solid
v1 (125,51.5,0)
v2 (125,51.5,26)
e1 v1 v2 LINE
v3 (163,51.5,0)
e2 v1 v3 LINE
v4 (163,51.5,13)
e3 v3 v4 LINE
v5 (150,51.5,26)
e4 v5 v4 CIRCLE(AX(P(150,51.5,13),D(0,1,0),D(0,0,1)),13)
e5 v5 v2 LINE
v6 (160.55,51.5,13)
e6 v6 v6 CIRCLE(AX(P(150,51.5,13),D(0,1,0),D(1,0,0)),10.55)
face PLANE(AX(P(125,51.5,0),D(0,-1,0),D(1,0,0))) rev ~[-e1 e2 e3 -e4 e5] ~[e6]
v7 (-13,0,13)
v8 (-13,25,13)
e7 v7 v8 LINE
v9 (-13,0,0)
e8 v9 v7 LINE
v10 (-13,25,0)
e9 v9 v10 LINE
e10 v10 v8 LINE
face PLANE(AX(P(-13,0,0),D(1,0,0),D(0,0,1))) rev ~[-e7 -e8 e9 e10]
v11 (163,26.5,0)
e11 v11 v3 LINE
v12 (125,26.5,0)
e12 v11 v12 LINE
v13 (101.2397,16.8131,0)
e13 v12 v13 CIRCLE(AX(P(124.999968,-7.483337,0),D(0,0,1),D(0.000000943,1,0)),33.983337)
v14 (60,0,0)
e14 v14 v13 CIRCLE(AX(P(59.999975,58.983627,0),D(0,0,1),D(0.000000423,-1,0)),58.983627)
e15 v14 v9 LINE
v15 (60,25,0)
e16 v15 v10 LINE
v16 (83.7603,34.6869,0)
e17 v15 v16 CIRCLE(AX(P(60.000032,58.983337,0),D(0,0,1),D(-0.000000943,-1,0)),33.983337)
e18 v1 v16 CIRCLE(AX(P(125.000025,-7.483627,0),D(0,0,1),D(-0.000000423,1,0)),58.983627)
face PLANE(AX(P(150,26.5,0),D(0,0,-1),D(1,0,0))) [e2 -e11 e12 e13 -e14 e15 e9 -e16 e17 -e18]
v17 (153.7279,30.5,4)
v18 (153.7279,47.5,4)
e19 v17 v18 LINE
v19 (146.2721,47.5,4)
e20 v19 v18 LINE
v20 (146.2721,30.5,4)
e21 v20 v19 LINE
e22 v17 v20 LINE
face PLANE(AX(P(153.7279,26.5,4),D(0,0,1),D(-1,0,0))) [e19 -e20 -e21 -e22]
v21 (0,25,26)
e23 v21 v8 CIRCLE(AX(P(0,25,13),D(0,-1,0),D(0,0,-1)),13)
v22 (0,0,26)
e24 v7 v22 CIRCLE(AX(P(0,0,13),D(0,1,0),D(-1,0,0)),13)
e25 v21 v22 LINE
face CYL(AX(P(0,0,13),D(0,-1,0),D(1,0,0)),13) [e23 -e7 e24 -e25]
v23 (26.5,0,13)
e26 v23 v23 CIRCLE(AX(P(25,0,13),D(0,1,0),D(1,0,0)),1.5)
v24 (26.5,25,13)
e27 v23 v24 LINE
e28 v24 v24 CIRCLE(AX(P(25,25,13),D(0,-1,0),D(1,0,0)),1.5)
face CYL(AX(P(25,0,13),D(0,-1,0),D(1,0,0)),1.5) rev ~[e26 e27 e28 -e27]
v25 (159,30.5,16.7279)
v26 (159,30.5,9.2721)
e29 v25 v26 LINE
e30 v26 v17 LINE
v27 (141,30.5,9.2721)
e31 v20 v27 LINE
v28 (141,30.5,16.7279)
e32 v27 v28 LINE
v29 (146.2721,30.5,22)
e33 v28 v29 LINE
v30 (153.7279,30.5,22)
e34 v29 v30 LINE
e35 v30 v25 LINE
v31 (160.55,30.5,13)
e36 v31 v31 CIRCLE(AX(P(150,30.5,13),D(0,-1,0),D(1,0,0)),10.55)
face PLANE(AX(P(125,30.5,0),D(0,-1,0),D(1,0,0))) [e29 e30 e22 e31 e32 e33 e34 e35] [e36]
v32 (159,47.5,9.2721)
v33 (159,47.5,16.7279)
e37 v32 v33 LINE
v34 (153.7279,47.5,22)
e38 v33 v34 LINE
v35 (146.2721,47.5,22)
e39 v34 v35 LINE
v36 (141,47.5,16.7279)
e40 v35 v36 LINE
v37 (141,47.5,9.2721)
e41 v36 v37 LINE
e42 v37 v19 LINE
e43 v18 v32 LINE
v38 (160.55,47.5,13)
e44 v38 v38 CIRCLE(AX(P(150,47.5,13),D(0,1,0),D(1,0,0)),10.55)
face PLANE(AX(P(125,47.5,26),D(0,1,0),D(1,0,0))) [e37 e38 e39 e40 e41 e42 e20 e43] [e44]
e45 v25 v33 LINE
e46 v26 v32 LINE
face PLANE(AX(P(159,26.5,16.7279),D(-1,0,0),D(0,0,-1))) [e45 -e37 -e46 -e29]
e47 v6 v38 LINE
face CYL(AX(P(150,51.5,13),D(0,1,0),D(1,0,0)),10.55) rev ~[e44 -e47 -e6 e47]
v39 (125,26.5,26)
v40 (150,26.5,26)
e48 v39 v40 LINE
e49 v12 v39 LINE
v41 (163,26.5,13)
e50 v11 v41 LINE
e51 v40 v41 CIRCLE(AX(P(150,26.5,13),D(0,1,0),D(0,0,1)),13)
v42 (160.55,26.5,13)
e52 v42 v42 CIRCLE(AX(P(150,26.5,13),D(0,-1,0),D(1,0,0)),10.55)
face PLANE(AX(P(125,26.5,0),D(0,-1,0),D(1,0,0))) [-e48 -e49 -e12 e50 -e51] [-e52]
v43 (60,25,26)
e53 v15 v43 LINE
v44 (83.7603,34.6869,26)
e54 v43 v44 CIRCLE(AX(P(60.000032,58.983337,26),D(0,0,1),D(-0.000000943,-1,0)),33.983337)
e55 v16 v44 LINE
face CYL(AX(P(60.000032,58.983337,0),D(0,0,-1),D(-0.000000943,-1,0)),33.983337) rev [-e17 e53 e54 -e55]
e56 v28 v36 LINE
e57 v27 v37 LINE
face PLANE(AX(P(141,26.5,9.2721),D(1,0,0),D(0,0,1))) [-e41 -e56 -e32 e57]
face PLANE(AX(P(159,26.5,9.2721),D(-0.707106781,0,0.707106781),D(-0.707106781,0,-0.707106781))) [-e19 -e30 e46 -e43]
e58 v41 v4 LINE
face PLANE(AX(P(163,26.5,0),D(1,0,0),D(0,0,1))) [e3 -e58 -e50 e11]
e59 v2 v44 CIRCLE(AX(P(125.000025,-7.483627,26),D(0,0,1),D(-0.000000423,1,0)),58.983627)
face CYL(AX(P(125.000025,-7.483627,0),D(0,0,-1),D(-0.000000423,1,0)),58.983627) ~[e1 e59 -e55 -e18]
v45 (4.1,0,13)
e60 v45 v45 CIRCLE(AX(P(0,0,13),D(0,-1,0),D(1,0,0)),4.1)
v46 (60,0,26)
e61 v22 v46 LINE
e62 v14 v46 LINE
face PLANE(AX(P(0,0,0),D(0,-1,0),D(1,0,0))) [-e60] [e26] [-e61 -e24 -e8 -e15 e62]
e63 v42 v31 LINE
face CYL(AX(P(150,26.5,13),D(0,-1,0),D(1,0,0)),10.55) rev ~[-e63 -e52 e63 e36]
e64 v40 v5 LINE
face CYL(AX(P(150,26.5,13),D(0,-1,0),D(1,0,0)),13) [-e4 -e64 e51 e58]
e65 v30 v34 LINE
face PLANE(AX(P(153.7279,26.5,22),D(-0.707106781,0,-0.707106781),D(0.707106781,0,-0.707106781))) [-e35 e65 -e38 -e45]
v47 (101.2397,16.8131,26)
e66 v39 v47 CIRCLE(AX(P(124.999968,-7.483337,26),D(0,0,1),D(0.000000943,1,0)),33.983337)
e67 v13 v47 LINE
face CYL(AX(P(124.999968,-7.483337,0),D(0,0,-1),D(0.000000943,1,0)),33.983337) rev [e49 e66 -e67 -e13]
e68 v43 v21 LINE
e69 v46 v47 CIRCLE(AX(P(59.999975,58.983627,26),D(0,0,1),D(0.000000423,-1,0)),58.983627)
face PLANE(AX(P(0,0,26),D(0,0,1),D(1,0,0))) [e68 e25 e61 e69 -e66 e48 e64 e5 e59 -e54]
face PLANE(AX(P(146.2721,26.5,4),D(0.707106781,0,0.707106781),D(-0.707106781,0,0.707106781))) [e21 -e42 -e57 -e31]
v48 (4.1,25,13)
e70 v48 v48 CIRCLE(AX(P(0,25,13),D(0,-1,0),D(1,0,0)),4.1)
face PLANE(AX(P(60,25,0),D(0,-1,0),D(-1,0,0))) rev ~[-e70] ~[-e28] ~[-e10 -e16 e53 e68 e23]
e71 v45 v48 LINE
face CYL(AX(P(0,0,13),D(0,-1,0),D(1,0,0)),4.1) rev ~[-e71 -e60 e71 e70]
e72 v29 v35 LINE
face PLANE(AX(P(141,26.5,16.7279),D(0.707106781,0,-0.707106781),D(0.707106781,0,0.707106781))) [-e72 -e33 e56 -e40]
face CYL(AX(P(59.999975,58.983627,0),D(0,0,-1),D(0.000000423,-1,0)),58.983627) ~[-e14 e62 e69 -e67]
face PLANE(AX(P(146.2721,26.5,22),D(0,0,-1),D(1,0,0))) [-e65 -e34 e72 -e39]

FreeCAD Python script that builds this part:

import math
import FreeCAD as App
import Part
import Sketcher
from FreeCAD import Vector


def add_polygon(sketch, points):
    """Adds a closed chain of lines whose ends are joined by coincident constraints."""
    first, n = sketch.GeometryCount, len(points)
    for a, b in zip(points, points[1:] + points[:1]):
        sketch.addGeometry(Part.LineSegment(App.Vector(*a, 0), App.Vector(*b, 0)), False)
    for i in range(n):
        sketch.addConstraint(Sketcher.Constraint("Coincident", first + i, 2, first + (i + 1) % n, 1))

doc = App.newDocument("Part")
body = doc.addObject("PartDesign::Body", "Body")

sketch1 = body.newObject("Sketcher::SketchObject", "Sketch")
sketch1.AttachmentSupport = (doc.getObject("XY_Plane"), [""])
sketch1.MapMode = "FlatFace"
sketch1.addGeometry([
    Part.LineSegment(Vector(0, 25, 0), Vector(0, 0, 0)),
    Part.LineSegment(Vector(0, 0, 0), Vector(60, 0, 0)),
    Part.ArcOfCircle(Part.Circle(Vector(60, 58.9835, 0), Vector(0, 0, 1), 58.9835), math.radians(-90), math.radians(-45.639287)),
    Part.ArcOfCircle(Part.Circle(Vector(125, -7.4835, 0), Vector(0, 0, 1), 33.9835), math.radians(90), math.radians(134.360624)),
    Part.LineSegment(Vector(125, 26.5, 0), Vector(150, 26.5, 0)),
    Part.LineSegment(Vector(150, 26.5, 0), Vector(150, 51.5, 0)),
    Part.LineSegment(Vector(150, 51.5, 0), Vector(125, 51.5, 0)),
    Part.ArcOfCircle(Part.Circle(Vector(125, -7.4835, 0), Vector(0, 0, 1), 58.9835), math.radians(90), math.radians(134.360713)),
    Part.ArcOfCircle(Part.Circle(Vector(60, 58.9835, 0), Vector(0, 0, 1), 33.9835), math.radians(-90), math.radians(-45.639376)),
    Part.LineSegment(Vector(60, 25, 0), Vector(0, 25, 0)),
], False)
sketch1.addConstraint([
    Sketcher.Constraint("Coincident", 0, 2, 1, 1),
    Sketcher.Constraint("Tangent", 1, 2, 2, 1),
    Sketcher.Constraint("Tangent", 2, 2, 3, 2),
    Sketcher.Constraint("Tangent", 3, 1, 4, 1),
    Sketcher.Constraint("Coincident", 4, 2, 5, 1),
    Sketcher.Constraint("Coincident", 5, 2, 6, 1),
    Sketcher.Constraint("Tangent", 6, 2, 7, 1),
    Sketcher.Constraint("Tangent", 7, 2, 8, 2),
    Sketcher.Constraint("Tangent", 8, 1, 9, 1),
    Sketcher.Constraint("Coincident", 9, 2, 0, 1),
    Sketcher.Constraint("Vertical", 0),
    Sketcher.Constraint("Horizontal", 1),
    Sketcher.Constraint("Horizontal", 4),
    Sketcher.Constraint("Vertical", 5),
    Sketcher.Constraint("Horizontal", 6),
    Sketcher.Constraint("Horizontal", 9),
    Sketcher.Constraint("Coincident", 0, 2, -1, 1),
    Sketcher.Constraint("Coincident", 7, 3, 3, 3),
    Sketcher.Constraint("Coincident", 8, 3, 2, 3),
    Sketcher.Constraint("Equal", 2, 7),
    Sketcher.Constraint("Equal", 6, 0),
    Sketcher.Constraint("DistanceX", 1, 1, 1, 2, 60.0),
    Sketcher.Constraint("DistanceX", 4, 1, 4, 2, 25.0),
    Sketcher.Constraint("DistanceX", -1, 1, 4, 2, 150.0),
    Sketcher.Constraint("DistanceY", -1, 1, 3, 1, 26.5),
])
pad1 = body.newObject("PartDesign::Pad", "Pad")
pad1.Profile = sketch1
pad1.Length = 26

sketch2 = body.newObject("Sketcher::SketchObject", "Sketch001")
sketch2.AttachmentSupport = (doc.getObject("XZ_Plane"), [""])
sketch2.MapMode = "FlatFace"
sketch2.AttachmentOffset = App.Placement(Vector(0, 0, -26.5), App.Rotation())
sketch2.addGeometry(Part.Circle(Vector(150, 13, 0), Vector(0, 0, 1), 13), False)
sketch2.addConstraint([
    Sketcher.Constraint("Diameter", 0, 26.0),
    Sketcher.Constraint("DistanceX", -1, 1, 0, 3, 150.0),
    Sketcher.Constraint("DistanceY", -1, 1, 0, 3, 13.0),
])
pad2 = body.newObject("PartDesign::Pad", "Pad001")
pad2.Profile = sketch2
pad2.Length = 25
pad2.Reversed = True

sketch3 = body.newObject("Sketcher::SketchObject", "Sketch002")
sketch3.AttachmentSupport = (doc.getObject("XZ_Plane"), [""])
sketch3.MapMode = "FlatFace"
sketch3.addGeometry([
    Part.LineSegment(Vector(-13, 13, 0), Vector(-13, 0, 0)),
    Part.LineSegment(Vector(-13, 0, 0), Vector(0, 0, 0)),
    Part.ArcOfCircle(Part.Circle(Vector(0, 13, 0), Vector(0, 0, 1), 13), math.radians(-90), math.radians(180)),
], False)
sketch3.addConstraint([
    Sketcher.Constraint("Coincident", 0, 2, 1, 1),
    Sketcher.Constraint("Tangent", 1, 2, 2, 1),
    Sketcher.Constraint("Tangent", 2, 2, 0, 1),
    Sketcher.Constraint("Vertical", 0),
    Sketcher.Constraint("Horizontal", 1),
    Sketcher.Constraint("Coincident", 1, 2, -1, 1),
    Sketcher.Constraint("Radius", 2, 13.0),
])
pad3 = body.newObject("PartDesign::Pad", "Pad002")
pad3.Profile = sketch3
pad3.Length = 25
pad3.Reversed = True

sketch4 = body.newObject("Sketcher::SketchObject", "Sketch003")
sketch4.AttachmentSupport = (doc.getObject("XZ_Plane"), [""])
sketch4.MapMode = "FlatFace"
sketch4.AttachmentOffset = App.Placement(Vector(0, 0, -26.5), App.Rotation())
sketch4.addGeometry([
    Part.ArcOfCircle(Part.Circle(Vector(150, 13, 0), Vector(0, 0, 1), 13), math.radians(-90), math.radians(0)),
    Part.LineSegment(Vector(150, 0, 0), Vector(163, 0, 0)),
    Part.LineSegment(Vector(163, 0, 0), Vector(163, 13, 0)),
], False)
sketch4.addConstraint([
    Sketcher.Constraint("Tangent", 0, 1, 1, 1),
    Sketcher.Constraint("Coincident", 1, 2, 2, 1),
    Sketcher.Constraint("Tangent", 2, 2, 0, 2),
    Sketcher.Constraint("Horizontal", 1),
    Sketcher.Constraint("Vertical", 2),
    Sketcher.Constraint("PointOnObject", 0, 1, -1),
    Sketcher.Constraint("Radius", 0, 13.0),
    Sketcher.Constraint("DistanceX", -1, 1, 0, 3, 150.0),
])
pad4 = body.newObject("PartDesign::Pad", "Pad003")
pad4.Profile = sketch4
pad4.Length = 25
pad4.Reversed = True

sketch5 = body.newObject("Sketcher::SketchObject", "Sketch004")
sketch5.AttachmentSupport = (doc.getObject("XZ_Plane"), [""])
sketch5.MapMode = "FlatFace"
sketch5.addGeometry(Part.Circle(Vector(0, 13, 0), Vector(0, 0, 1), 4.1), False)
sketch5.addConstraint([
    Sketcher.Constraint("PointOnObject", 0, 3, -2),
    Sketcher.Constraint("Diameter", 0, 8.2),
    Sketcher.Constraint("DistanceY", -1, 1, 0, 3, 13.0),
])
pocket1 = body.newObject("PartDesign::Pocket", "Pocket")
pocket1.Profile = sketch5
pocket1.Type = "ThroughAll"

sketch6 = body.newObject("Sketcher::SketchObject", "Sketch005")
sketch6.AttachmentSupport = (doc.getObject("XZ_Plane"), [""])
sketch6.MapMode = "FlatFace"
sketch6.addGeometry(Part.Circle(Vector(25, 13, 0), Vector(0, 0, 1), 1.5), False)
sketch6.addConstraint([
    Sketcher.Constraint("Diameter", 0, 3.0),
    Sketcher.Constraint("DistanceX", -1, 1, 0, 3, 25.0),
    Sketcher.Constraint("DistanceY", -1, 1, 0, 3, 13.0),
])
pocket2 = body.newObject("PartDesign::Pocket", "Pocket001")
pocket2.Profile = sketch6
pocket2.Type = "ThroughAll"

sketch7 = body.newObject("Sketcher::SketchObject", "Sketch006")
sketch7.AttachmentSupport = (doc.getObject("XZ_Plane"), [""])
sketch7.MapMode = "FlatFace"
sketch7.AttachmentOffset = App.Placement(Vector(0, 0, -26.5), App.Rotation())
add_polygon(sketch7, [(153.7279, 22), (146.2721, 22), (141, 16.7279), (141, 9.2721), (146.2721, 4), (153.7279, 4), (159, 9.2721), (159, 16.7279)])
sketch7.addConstraint([
    Sketcher.Constraint("Horizontal", 0),
    Sketcher.Constraint("Vertical", 2),
    Sketcher.Constraint("Horizontal", 4),
    Sketcher.Constraint("Vertical", 6),
    Sketcher.Constraint("Perpendicular", 1, 3),
    Sketcher.Constraint("Perpendicular", 3, 5),
    Sketcher.Constraint("Perpendicular", 5, 7),
    Sketcher.Constraint("Horizontal", 2, 2, 5, 2),
    Sketcher.Constraint("Horizontal", 1, 2, 6, 2),
    Sketcher.Constraint("Vertical", 0, 2, 3, 2),
    Sketcher.Constraint("Vertical", 4, 2, 7, 2),
    Sketcher.Constraint("Equal", 4, 2),
    Sketcher.Constraint("DistanceY", 3, 2, 0, 2, 18.0),
    Sketcher.Constraint("DistanceY", -1, 1, 0, 2, 22.0),
    Sketcher.Constraint("DistanceX", -1, 1, 1, 2, 141.0),
    Sketcher.Constraint("DistanceX", 0, 2, 0, 1, 7.4558),
])
pocket3 = body.newObject("PartDesign::Pocket", "Pocket002")
pocket3.Profile = sketch7
pocket3.Type = "ThroughAll"

sketch8 = body.newObject("Sketcher::SketchObject", "Sketch007")
sketch8.AttachmentSupport = (doc.getObject("XZ_Plane"), [""])
sketch8.MapMode = "FlatFace"
sketch8.AttachmentOffset = App.Placement(Vector(0, 0, -26.5), App.Rotation())
sketch8.addGeometry(Part.Circle(Vector(150, 13, 0), Vector(0, 0, 1), 10.55), False)
add_polygon(sketch8, [(141, 9.2721), (141, 16.7279), (146.2721, 22), (153.7279, 22), (159, 16.7279), (159, 9.2721), (153.7279, 4), (146.2721, 4)])
sketch8.addConstraint([
    Sketcher.Constraint("Vertical", 1),
    Sketcher.Constraint("Horizontal", 3),
    Sketcher.Constraint("Vertical", 5),
    Sketcher.Constraint("Horizontal", 7),
    Sketcher.Constraint("Perpendicular", 2, 4),
    Sketcher.Constraint("Perpendicular", 4, 6),
    Sketcher.Constraint("Perpendicular", 6, 8),
    Sketcher.Constraint("Horizontal", 1, 2, 4, 2),
    Sketcher.Constraint("Horizontal", 5, 2, 8, 2),
    Sketcher.Constraint("Vertical", 3, 2, 6, 2),
    Sketcher.Constraint("Vertical", 2, 2, 7, 2),
    Sketcher.Constraint("Equal", 7, 1),
    Sketcher.Constraint("Diameter", 0, 21.1),
    Sketcher.Constraint("DistanceX", -1, 1, 0, 3, 150.0),
    Sketcher.Constraint("DistanceY", -1, 1, 0, 3, 13.0),
    Sketcher.Constraint("DistanceX", -1, 1, 1, 2, 141.0),
    Sketcher.Constraint("DistanceY", -1, 1, 2, 2, 22.0),
    Sketcher.Constraint("DistanceX", -1, 1, 4, 2, 159.0),
    Sketcher.Constraint("DistanceX", 3, 1, 3, 2, 7.4558),
])
pocket4 = body.newObject("PartDesign::Pocket", "Pocket003")
pocket4.Profile = sketch8
pocket4.Length = 4

sketch9 = body.newObject("Sketcher::SketchObject", "Sketch008")
sketch9.AttachmentSupport = (doc.getObject("XZ_Plane"), [""])
sketch9.MapMode = "FlatFace"
sketch9.AttachmentOffset = App.Placement(Vector(0, 0, -51.5), App.Rotation())
sketch9.addGeometry(Part.Circle(Vector(150, 13, 0), Vector(0, 0, 1), 10.55), False)
add_polygon(sketch9, [(153.7279, 22), (146.2721, 22), (141, 16.7279), (141, 9.2721), (146.2721, 4), (153.7279, 4), (159, 9.2721), (159, 16.7279)])
sketch9.addConstraint([
    Sketcher.Constraint("Horizontal", 1),
    Sketcher.Constraint("Vertical", 3),
    Sketcher.Constraint("Horizontal", 5),
    Sketcher.Constraint("Vertical", 7),
    Sketcher.Constraint("Perpendicular", 2, 4),
    Sketcher.Constraint("Perpendicular", 4, 6),
    Sketcher.Constraint("Perpendicular", 6, 8),
    Sketcher.Constraint("Horizontal", 3, 2, 6, 2),
    Sketcher.Constraint("Horizontal", 2, 2, 7, 2),
    Sketcher.Constraint("Vertical", 1, 2, 4, 2),
    Sketcher.Constraint("Vertical", 5, 2, 8, 2),
    Sketcher.Constraint("Equal", 5, 3),
    Sketcher.Constraint("Diameter", 0, 21.1),
    Sketcher.Constraint("DistanceX", -1, 1, 0, 3, 150.0),
    Sketcher.Constraint("DistanceY", -1, 1, 0, 3, 13.0),
    Sketcher.Constraint("DistanceY", -1, 1, 1, 2, 22.0),
    Sketcher.Constraint("DistanceX", -1, 1, 2, 2, 141.0),
    Sketcher.Constraint("DistanceY", -1, 1, 4, 2, 4.0),
    Sketcher.Constraint("DistanceX", 1, 2, 1, 1, 7.4558),
])
pocket5 = body.newObject("PartDesign::Pocket", "Pocket004")
pocket5.Profile = sketch9
pocket5.Length = 4
pocket5.Reversed = True

doc.recompute()
